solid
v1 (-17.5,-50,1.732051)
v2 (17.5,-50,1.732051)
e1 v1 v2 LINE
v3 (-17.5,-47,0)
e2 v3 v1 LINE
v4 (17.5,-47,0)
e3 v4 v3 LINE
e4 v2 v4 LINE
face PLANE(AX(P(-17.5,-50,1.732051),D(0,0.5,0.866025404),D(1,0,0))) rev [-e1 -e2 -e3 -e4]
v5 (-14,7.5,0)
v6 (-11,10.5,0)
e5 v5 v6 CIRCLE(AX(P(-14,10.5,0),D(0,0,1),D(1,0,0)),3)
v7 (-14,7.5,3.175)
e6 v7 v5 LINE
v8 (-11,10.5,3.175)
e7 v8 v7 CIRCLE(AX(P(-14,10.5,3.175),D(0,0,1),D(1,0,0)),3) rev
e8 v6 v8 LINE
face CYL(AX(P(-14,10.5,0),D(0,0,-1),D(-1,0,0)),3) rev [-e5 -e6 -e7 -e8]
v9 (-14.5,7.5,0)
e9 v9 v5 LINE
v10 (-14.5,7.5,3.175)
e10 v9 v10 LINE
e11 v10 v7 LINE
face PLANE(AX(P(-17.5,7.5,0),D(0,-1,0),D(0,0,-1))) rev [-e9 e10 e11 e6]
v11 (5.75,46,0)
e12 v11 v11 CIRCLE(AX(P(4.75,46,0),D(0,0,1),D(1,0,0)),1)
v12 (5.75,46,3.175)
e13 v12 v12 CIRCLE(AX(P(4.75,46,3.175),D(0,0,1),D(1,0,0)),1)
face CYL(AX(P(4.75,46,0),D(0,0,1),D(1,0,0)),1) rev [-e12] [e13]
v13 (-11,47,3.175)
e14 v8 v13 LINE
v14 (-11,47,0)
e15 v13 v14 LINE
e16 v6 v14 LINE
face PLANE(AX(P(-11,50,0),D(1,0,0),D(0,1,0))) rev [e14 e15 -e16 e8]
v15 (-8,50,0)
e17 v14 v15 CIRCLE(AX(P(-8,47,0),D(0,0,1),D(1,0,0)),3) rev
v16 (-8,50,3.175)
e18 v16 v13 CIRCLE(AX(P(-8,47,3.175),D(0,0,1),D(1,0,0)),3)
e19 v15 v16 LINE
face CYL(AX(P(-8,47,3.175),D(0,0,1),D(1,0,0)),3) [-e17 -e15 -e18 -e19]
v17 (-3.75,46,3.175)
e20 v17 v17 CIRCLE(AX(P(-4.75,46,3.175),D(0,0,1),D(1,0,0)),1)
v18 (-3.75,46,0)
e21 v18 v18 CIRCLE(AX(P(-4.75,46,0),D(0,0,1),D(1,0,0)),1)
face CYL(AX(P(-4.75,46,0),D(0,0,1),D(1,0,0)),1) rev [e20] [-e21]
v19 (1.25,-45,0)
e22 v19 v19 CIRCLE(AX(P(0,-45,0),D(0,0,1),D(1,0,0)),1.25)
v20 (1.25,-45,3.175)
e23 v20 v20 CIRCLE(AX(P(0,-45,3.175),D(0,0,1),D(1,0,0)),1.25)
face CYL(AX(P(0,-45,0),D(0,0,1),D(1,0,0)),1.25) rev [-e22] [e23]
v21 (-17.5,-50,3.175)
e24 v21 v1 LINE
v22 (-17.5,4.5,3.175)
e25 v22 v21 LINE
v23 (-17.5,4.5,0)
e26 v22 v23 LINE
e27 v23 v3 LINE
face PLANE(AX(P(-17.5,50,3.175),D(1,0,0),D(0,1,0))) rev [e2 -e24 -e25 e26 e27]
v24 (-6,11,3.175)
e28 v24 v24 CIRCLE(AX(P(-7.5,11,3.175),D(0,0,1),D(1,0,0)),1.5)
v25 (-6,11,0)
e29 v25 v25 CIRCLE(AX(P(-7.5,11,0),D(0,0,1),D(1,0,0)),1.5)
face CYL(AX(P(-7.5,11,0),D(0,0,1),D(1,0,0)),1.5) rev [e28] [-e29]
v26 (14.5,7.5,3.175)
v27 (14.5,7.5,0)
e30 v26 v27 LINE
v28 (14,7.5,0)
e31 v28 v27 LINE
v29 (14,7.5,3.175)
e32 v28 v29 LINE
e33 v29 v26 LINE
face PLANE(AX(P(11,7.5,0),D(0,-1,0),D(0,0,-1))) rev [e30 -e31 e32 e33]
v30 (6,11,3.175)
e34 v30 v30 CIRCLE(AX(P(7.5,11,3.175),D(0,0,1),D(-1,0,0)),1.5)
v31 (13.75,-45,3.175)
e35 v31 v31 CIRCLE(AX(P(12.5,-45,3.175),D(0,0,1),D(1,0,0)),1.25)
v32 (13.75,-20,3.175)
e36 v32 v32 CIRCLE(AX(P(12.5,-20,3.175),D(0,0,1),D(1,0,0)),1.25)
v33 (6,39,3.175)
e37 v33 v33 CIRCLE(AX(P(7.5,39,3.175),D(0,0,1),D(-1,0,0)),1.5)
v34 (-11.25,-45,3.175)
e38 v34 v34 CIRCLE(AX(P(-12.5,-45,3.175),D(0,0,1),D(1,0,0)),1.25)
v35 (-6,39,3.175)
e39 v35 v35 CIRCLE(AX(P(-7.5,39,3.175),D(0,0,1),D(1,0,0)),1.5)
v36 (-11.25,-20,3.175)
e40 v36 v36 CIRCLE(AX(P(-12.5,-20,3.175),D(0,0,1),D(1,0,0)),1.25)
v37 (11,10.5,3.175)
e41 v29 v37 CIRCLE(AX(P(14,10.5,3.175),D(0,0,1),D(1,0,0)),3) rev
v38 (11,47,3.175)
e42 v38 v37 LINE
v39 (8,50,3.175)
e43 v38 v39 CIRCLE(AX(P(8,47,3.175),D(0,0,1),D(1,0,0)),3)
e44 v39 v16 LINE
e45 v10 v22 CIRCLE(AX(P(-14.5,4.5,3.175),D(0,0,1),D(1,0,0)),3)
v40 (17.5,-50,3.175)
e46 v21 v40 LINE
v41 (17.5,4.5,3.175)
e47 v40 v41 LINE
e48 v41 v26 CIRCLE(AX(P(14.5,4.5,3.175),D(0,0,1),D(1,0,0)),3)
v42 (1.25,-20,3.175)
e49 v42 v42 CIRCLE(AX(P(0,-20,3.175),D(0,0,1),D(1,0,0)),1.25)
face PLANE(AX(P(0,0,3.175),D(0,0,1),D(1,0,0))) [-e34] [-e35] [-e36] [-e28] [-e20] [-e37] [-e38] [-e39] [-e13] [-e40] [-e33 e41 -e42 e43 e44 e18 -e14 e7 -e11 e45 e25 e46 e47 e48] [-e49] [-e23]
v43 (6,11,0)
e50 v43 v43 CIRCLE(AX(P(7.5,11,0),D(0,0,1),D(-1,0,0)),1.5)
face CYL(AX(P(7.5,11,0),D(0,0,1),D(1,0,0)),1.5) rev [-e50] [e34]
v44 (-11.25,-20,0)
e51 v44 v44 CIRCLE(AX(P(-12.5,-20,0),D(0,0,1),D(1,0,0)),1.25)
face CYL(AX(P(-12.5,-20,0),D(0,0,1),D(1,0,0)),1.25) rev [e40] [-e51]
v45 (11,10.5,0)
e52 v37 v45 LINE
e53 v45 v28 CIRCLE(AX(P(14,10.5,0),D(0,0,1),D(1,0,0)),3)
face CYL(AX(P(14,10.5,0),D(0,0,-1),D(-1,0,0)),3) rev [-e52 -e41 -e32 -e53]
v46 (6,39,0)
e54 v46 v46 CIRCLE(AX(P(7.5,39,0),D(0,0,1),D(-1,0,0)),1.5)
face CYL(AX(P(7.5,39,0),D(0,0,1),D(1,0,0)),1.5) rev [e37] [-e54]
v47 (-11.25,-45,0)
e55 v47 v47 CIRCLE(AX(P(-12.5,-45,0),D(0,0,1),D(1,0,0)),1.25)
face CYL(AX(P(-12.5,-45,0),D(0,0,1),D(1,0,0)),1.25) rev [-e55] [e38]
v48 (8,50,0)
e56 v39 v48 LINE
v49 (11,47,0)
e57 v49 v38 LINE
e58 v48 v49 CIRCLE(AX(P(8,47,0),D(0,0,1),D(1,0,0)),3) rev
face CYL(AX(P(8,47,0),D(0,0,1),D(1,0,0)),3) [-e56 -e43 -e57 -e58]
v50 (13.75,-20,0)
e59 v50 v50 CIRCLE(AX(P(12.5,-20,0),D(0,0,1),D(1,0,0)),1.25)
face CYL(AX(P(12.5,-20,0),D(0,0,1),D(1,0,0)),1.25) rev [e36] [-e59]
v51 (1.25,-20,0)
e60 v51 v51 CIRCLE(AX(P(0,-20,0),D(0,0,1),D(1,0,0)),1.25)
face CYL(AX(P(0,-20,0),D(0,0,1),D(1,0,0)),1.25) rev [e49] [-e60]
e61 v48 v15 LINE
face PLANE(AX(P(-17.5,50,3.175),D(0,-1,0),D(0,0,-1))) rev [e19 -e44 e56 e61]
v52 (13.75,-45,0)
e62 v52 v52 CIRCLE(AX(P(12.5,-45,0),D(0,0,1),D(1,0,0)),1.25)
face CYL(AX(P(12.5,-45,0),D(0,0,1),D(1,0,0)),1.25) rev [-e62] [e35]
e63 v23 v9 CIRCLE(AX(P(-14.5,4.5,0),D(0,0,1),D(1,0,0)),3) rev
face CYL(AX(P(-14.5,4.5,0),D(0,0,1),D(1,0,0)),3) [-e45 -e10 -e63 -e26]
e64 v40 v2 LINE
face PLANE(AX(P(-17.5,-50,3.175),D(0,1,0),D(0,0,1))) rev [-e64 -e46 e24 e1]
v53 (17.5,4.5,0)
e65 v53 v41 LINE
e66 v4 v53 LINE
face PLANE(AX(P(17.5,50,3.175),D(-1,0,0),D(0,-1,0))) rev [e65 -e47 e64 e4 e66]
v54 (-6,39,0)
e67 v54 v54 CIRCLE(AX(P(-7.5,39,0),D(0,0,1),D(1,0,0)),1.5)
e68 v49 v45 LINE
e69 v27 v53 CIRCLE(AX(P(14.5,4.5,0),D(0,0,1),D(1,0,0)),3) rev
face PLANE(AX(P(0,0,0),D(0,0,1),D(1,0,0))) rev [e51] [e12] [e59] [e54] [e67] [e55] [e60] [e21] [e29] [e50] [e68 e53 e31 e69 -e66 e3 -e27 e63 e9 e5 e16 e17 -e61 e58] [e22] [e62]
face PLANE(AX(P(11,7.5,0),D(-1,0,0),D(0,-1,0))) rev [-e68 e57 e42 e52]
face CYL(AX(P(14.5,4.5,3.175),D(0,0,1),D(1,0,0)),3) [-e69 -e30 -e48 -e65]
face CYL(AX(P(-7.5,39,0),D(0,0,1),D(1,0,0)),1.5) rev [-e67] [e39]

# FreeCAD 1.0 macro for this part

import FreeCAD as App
import Part
import Sketcher


def edges_at(feature, points):
    """Names of the edges that pass closest to the given points."""
    edges = feature.Shape.Edges
    near = lambda p: min(range(len(edges)), key=lambda i: edges[i].distToShape(Part.Vertex(*p))[0])
    return sorted({f"Edge{near(p) + 1}" for p in points})

doc = App.newDocument("Part")
body = doc.addObject("PartDesign::Body", "Body")

sketch1 = body.newObject("Sketcher::SketchObject", "Sketch")
sketch1.AttachmentSupport = (doc.getObject("XY_Plane"), [""])
sketch1.MapMode = "FlatFace"
sketch1.addGeometry([
    Part.LineSegment(App.Vector(-18, 50, 0), App.Vector(-18, -50, 0)),
    Part.LineSegment(App.Vector(-18, -50, 0), App.Vector(18, -50, 0)),
    Part.LineSegment(App.Vector(18, -50, 0), App.Vector(18, 50, 0)),
    Part.LineSegment(App.Vector(18, 50, 0), App.Vector(-18, 50, 0)),
], False)
sketch1.addConstraint([
    Sketcher.Constraint("Coincident", 0, 2, 1, 1),
    Sketcher.Constraint("Coincident", 1, 2, 2, 1),
    Sketcher.Constraint("Coincident", 2, 2, 3, 1),
    Sketcher.Constraint("Coincident", 3, 2, 0, 1),
    Sketcher.Constraint("Vertical", 0),
    Sketcher.Constraint("Horizontal", 1),
    Sketcher.Constraint("Vertical", 2),
    Sketcher.Constraint("Horizontal", 3),
    Sketcher.Constraint("Symmetric", 0, 2, 2, 2, -1, 1),
    Sketcher.Constraint("DistanceX", 1, 1, 1, 2, 35.0),
    Sketcher.Constraint("DistanceY", 0, 2, 0, 1, 100.0),
])
pad1 = body.newObject("PartDesign::Pad", "Pad")
pad1.Profile = sketch1
pad1.Length = 3.175

sketch2 = body.newObject("Sketcher::SketchObject", "Sketch001")
sketch2.AttachmentSupport = (doc.getObject("XY_Plane"), [""])
sketch2.MapMode = "FlatFace"
sketch2.AttachmentOffset = App.Placement(App.Vector(0, 0, 3.175), App.Rotation())
sketch2.addGeometry([
    Part.Circle(App.Vector(-7.5, 39, 0), App.Vector(0, 0, 1), 1.5),
    Part.Circle(App.Vector(-7.5, 11, 0), App.Vector(0, 0, 1), 1.5),
    Part.Circle(App.Vector(7.5, 11, 0), App.Vector(0, 0, 1), 1.5),
    Part.Circle(App.Vector(7.5, 39, 0), App.Vector(0, 0, 1), 1.5),
    Part.LineSegment(App.Vector(-17.5, 50, 0), App.Vector(-17.5, 7.5, 0)),
    Part.LineSegment(App.Vector(-17.5, 7.5, 0), App.Vector(-11, 7.5, 0)),
    Part.LineSegment(App.Vector(-11, 7.5, 0), App.Vector(-11, 50, 0)),
    Part.LineSegment(App.Vector(-11, 50, 0), App.Vector(-17.5, 50, 0)),
    Part.LineSegment(App.Vector(11, 50, 0), App.Vector(11, 7.5, 0)),
    Part.LineSegment(App.Vector(11, 7.5, 0), App.Vector(17.5, 7.5, 0)),
    Part.LineSegment(App.Vector(17.5, 7.5, 0), App.Vector(17.5, 50, 0)),
    Part.LineSegment(App.Vector(17.5, 50, 0), App.Vector(11, 50, 0)),
], False)
sketch2.addConstraint([
    Sketcher.Constraint("Coincident", 4, 2, 5, 1),
    Sketcher.Constraint("Coincident", 5, 2, 6, 1),
    Sketcher.Constraint("Coincident", 6, 2, 7, 1),
    Sketcher.Constraint("Coincident", 7, 2, 4, 1),
    Sketcher.Constraint("Coincident", 8, 2, 9, 1),
    Sketcher.Constraint("Coincident", 9, 2, 10, 1),
    Sketcher.Constraint("Coincident", 10, 2, 11, 1),
    Sketcher.Constraint("Coincident", 11, 2, 8, 1),
    Sketcher.Constraint("Vertical", 4),
    Sketcher.Constraint("Horizontal", 5),
    Sketcher.Constraint("Vertical", 6),
    Sketcher.Constraint("Horizontal", 7),
    Sketcher.Constraint("Vertical", 8),
    Sketcher.Constraint("Horizontal", 9),
    Sketcher.Constraint("Vertical", 10),
    Sketcher.Constraint("Horizontal", 11),
    Sketcher.Constraint("Equal", 0, 1),
    Sketcher.Constraint("Equal", 1, 2),
    Sketcher.Constraint("Equal", 2, 3),
    Sketcher.Constraint("Symmetric", 1, 3, 2, 3, -2),
    Sketcher.Constraint("Symmetric", 0, 3, 3, 3, -2),
    Sketcher.Constraint("Symmetric", 5, 2, 8, 2, -2),
    Sketcher.Constraint("Symmetric", 7, 2, 10, 2, -2),
    Sketcher.Constraint("Vertical", 0, 3, 1, 3),
    Sketcher.Constraint("Diameter", 0, 3.0),
    Sketcher.Constraint("DistanceX", 5, 1, 5, 2, 6.5),
    Sketcher.Constraint("DistanceY", 4, 2, 4, 1, 42.5),
    Sketcher.Constraint("DistanceY", -1, 1, 0, 3, 39.0),
    Sketcher.Constraint("DistanceY", -1, 1, 1, 3, 11.0),
    Sketcher.Constraint("DistanceX", 5, 2, -1, 1, 11.0),
    Sketcher.Constraint("DistanceY", -1, 1, 6, 2, 50.0),
    Sketcher.Constraint("DistanceX", 1, 3, 2, 3, 15.0),
])
pocket1 = body.newObject("PartDesign::Pocket", "Pocket")
pocket1.Profile = sketch2
pocket1.Type = "ThroughAll"
doc.recompute()

fillet = body.newObject("PartDesign::Fillet", "Fillet")
fillet.Base = (pocket1, edges_at(pocket1, [
    (-17.5, 7.5, 1.587),
    (-11, 50, 1.587),
    (-11, 7.5, 1.587),
    (11, 7.5, 1.587),
    (11, 50, 1.587),
    (17.5, 7.5, 1.587),
]))
fillet.Radius = 3
doc.recompute()

chamfer = body.newObject("PartDesign::Chamfer", "Chamfer")
chamfer.Base = (fillet, edges_at(fillet, [(0, -50, 0)]))
chamfer.ChamferType = "Two distances"
chamfer.Size = 3
chamfer.Size2 = 1.732051

sketch3 = body.newObject("Sketcher::SketchObject", "Sketch002")
sketch3.AttachmentSupport = (doc.getObject("XY_Plane"), [""])
sketch3.MapMode = "FlatFace"
sketch3.AttachmentOffset = App.Placement(App.Vector(0, 0, 3.175), App.Rotation())
sketch3.addGeometry([
    Part.Circle(App.Vector(-4.8, 46, 0), App.Vector(0, 0, 1), 1),
    Part.Circle(App.Vector(4.8, 46, 0), App.Vector(0, 0, 1), 1),
], False)
sketch3.addConstraint([
    Sketcher.Constraint("Equal", 0, 1),
    Sketcher.Constraint("Symmetric", 0, 3, 1, 3, -2),
    Sketcher.Constraint("Diameter", 0, 2.0),
    Sketcher.Constraint("DistanceY", -1, 1, 0, 3, 46.0),
    Sketcher.Constraint("DistanceX", 0, 3, 1, 3, 9.5),
])
pocket2 = body.newObject("PartDesign::Pocket", "Pocket001")
pocket2.Profile = sketch3
pocket2.Type = "ThroughAll"

sketch4 = body.newObject("Sketcher::SketchObject", "Sketch003")
sketch4.AttachmentSupport = (doc.getObject("XY_Plane"), [""])
sketch4.MapMode = "FlatFace"
sketch4.AttachmentOffset = App.Placement(App.Vector(0, 0, 3.175), App.Rotation())
sketch4.addGeometry([
    Part.Circle(App.Vector(-12.5, -45, 0), App.Vector(0, 0, 1), 1.2),
    Part.Circle(App.Vector(12.5, -45, 0), App.Vector(0, 0, 1), 1.2),
    Part.Circle(App.Vector(-12.5, -20, 0), App.Vector(0, 0, 1), 1.2),
    Part.Circle(App.Vector(12.5, -20, 0), App.Vector(0, 0, 1), 1.2),
    Part.Circle(App.Vector(0, -45, 0), App.Vector(0, 0, 1), 1.2),
    Part.Circle(App.Vector(0, -20, 0), App.Vector(0, 0, 1), 1.2),
], False)
sketch4.addConstraint([
    Sketcher.Constraint("Equal", 0, 1),
    Sketcher.Constraint("Equal", 1, 2),
    Sketcher.Constraint("Equal", 2, 3),
    Sketcher.Constraint("Equal", 3, 4),
    Sketcher.Constraint("Equal", 4, 5),
    Sketcher.Constraint("Symmetric", 0, 3, 1, 3, -2),
    Sketcher.Constraint("Symmetric", 2, 3, 3, 3, -2),
    Sketcher.Constraint("PointOnObject", 4, 3, -2),
    Sketcher.Constraint("PointOnObject", 5, 3, -2),
    Sketcher.Constraint("Horizontal", 1, 3, 4, 3),
    Sketcher.Constraint("Horizontal", 3, 3, 5, 3),
    Sketcher.Constraint("Vertical", 0, 3, 2, 3),
    Sketcher.Constraint("Diameter", 0, 2.5),
    Sketcher.Constraint("DistanceY", 0, 3, -1, 1, 45.0),
    Sketcher.Constraint("DistanceY", 2, 3, -1, 1, 20.0),
    Sketcher.Constraint("DistanceX", 0, 3, 1, 3, 25.0),
])
pocket3 = body.newObject("PartDesign::Pocket", "Pocket002")
pocket3.Profile = sketch4
pocket3.Type = "ThroughAll"

doc.recompute()
